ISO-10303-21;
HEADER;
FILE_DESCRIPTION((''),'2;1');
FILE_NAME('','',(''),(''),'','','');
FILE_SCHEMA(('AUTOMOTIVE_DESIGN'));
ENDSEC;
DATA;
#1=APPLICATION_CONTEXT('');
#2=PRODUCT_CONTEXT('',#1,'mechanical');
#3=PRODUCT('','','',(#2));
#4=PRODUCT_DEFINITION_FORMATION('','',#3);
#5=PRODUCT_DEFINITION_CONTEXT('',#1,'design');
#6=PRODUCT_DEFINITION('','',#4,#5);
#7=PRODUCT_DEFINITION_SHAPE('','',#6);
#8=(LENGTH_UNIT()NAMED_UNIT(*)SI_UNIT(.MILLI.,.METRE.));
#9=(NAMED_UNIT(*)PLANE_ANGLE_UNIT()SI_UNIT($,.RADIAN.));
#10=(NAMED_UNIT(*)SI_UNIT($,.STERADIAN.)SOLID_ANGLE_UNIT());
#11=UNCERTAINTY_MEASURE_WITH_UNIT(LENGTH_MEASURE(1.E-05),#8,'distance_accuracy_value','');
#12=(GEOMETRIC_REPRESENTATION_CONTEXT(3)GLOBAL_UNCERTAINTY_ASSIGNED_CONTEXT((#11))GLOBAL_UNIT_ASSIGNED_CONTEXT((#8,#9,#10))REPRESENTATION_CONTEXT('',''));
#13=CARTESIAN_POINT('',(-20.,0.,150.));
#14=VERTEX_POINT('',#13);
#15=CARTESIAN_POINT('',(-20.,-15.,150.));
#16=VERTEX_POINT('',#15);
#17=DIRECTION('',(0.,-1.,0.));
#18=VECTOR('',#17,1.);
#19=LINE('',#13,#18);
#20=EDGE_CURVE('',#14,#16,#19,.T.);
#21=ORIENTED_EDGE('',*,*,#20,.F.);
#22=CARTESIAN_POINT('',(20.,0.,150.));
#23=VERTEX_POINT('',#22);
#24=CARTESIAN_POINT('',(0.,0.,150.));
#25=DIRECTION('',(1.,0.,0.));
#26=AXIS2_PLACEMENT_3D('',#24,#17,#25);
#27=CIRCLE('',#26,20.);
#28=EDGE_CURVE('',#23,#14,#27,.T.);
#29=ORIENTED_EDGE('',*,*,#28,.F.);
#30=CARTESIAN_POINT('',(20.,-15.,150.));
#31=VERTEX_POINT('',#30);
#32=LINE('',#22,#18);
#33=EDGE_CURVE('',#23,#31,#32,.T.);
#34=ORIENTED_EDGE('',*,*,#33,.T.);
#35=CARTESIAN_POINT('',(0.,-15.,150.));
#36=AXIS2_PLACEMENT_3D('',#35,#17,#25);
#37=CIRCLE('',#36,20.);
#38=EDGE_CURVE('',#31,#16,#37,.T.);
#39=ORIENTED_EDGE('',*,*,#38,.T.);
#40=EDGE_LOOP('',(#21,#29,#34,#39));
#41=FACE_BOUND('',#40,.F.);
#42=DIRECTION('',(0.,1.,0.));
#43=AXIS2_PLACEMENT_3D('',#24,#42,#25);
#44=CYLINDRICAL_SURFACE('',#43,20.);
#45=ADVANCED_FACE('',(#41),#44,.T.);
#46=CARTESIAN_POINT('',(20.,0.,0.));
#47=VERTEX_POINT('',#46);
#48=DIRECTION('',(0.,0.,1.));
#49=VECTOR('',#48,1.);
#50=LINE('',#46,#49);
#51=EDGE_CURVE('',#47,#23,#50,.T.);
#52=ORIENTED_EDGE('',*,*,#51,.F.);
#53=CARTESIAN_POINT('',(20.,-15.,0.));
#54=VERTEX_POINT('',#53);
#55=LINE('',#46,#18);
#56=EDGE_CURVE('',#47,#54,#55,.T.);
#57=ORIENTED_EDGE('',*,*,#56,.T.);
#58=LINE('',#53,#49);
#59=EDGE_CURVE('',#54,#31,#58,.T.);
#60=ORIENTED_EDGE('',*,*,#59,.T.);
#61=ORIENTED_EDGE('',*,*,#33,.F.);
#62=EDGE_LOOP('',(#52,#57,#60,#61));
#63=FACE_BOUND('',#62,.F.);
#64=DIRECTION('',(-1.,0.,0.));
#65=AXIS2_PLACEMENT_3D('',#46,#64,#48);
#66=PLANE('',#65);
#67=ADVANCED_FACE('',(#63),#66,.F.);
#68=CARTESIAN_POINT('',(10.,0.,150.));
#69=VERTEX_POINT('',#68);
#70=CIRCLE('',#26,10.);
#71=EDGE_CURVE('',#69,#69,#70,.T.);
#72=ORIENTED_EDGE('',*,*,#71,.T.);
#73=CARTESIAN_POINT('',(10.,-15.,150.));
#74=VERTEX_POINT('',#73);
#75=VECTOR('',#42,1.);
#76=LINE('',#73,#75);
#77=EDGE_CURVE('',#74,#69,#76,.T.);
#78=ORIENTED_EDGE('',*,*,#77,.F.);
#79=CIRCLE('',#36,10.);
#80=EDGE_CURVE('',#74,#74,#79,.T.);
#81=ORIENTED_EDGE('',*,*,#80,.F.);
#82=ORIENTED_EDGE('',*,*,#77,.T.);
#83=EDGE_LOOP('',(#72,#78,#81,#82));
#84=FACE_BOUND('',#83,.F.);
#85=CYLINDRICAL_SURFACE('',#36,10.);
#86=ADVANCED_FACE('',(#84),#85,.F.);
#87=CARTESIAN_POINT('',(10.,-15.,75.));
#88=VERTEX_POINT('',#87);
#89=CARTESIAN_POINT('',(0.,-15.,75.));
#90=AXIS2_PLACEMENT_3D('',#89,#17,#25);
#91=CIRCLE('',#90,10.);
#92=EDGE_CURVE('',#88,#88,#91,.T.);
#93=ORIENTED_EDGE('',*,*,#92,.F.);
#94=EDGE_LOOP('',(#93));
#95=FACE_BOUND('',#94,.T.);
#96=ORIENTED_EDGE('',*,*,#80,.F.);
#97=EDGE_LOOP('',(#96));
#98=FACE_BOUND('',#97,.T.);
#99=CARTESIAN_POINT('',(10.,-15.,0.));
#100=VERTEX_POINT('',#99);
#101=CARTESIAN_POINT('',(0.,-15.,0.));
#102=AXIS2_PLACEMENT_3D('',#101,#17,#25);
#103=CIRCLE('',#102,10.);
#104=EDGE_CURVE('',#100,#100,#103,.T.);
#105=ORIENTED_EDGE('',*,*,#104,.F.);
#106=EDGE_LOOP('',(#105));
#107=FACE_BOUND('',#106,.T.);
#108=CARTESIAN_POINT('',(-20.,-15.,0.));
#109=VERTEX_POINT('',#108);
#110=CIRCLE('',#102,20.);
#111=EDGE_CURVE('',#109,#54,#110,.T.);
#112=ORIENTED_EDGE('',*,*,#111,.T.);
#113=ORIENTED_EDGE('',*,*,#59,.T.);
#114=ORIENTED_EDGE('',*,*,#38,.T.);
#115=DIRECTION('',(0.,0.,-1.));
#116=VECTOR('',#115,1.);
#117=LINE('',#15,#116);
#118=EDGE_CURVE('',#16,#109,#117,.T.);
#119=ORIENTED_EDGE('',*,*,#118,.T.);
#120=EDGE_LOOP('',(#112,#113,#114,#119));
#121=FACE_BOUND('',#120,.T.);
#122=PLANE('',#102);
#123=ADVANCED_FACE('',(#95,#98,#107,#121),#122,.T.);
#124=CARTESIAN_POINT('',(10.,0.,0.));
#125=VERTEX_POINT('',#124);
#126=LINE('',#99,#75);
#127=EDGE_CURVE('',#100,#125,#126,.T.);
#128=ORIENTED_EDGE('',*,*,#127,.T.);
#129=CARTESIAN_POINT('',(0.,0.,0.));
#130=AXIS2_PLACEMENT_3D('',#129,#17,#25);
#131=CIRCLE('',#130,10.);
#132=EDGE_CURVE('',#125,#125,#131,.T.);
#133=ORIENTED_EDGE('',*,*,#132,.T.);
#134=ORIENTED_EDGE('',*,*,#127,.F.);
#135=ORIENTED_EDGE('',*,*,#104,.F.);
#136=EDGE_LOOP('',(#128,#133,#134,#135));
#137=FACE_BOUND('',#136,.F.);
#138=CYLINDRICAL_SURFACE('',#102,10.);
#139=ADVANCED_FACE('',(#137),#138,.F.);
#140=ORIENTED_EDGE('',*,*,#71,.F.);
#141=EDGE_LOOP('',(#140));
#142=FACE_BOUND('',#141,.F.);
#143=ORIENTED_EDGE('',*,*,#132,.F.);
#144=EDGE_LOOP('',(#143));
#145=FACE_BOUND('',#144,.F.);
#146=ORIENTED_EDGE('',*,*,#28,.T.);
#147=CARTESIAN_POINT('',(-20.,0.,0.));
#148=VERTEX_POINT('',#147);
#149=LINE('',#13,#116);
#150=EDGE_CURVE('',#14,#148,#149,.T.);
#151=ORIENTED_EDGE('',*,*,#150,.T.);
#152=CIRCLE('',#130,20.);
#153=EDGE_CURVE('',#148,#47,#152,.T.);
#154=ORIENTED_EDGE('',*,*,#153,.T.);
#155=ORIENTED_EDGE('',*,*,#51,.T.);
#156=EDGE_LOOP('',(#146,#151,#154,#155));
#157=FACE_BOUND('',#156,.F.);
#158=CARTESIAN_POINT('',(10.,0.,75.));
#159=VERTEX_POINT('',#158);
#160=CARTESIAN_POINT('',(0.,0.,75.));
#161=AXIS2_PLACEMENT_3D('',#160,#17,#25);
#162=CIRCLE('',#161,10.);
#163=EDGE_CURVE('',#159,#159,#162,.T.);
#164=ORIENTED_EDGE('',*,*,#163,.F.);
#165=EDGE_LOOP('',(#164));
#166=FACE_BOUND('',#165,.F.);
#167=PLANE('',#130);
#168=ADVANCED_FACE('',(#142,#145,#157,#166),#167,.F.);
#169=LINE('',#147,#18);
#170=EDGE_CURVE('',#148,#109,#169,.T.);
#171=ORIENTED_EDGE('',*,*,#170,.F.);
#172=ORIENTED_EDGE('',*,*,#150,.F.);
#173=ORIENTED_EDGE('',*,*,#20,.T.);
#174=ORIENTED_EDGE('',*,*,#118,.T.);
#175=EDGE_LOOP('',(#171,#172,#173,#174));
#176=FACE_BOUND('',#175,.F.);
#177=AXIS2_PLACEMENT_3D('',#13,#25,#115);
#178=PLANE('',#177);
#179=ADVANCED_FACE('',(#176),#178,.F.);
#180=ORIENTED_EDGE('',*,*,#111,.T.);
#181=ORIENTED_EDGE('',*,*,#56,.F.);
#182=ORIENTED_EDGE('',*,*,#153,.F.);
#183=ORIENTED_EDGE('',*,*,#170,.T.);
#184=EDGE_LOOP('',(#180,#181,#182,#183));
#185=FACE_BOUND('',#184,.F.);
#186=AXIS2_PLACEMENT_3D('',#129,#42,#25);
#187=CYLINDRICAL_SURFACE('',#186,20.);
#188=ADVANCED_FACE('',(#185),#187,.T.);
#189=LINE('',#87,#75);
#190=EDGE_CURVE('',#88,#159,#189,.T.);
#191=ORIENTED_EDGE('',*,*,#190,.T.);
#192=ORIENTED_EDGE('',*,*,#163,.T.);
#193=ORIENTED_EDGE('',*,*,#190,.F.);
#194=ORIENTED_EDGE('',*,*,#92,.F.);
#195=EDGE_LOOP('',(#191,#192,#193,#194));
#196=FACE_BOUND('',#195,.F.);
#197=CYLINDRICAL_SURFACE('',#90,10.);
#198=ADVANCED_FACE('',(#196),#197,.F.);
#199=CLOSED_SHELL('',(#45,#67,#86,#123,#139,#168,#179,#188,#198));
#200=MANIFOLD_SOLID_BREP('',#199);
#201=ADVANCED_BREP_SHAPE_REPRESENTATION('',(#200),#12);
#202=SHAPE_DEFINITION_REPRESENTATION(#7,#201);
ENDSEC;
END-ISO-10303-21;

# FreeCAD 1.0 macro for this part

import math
import FreeCAD as App
import Part
import Sketcher
from FreeCAD import Vector
Q = App.Units.Quantity

doc = App.newDocument("Part")
body = doc.addObject("PartDesign::Body", "Body")

# Sketch on XZ plane
sketch1 = body.newObject("Sketcher::SketchObject", "Sketch")
sketch1.AttachmentSupport = (doc.getObject("XZ_Plane"), [""])
sketch1.MapMode = "FlatFace"
sketch1.addGeometry(Part.ArcOfCircle(Part.Circle(Vector(0, 0, 0), Vector(0, 0, 1), 20), math.radians(180), math.radians(360)), False)
sketch1.addGeometry(Part.LineSegment(Vector(20, 0, 0), Vector(20, 150, 0)), False)
sketch1.addGeometry(Part.ArcOfCircle(Part.Circle(Vector(0, 150, 0), Vector(0, 0, 1), 20), math.radians(0), math.radians(180)), False)
sketch1.addGeometry(Part.LineSegment(Vector(-20, 150, 0), Vector(-20, 0, 0)), False)
sketch1.addConstraint(Sketcher.Constraint("Tangent", 0, 2, 1, 1))
sketch1.addConstraint(Sketcher.Constraint("Tangent", 1, 2, 2, 1))
sketch1.addConstraint(Sketcher.Constraint("Tangent", 2, 2, 3, 1))
sketch1.addConstraint(Sketcher.Constraint("Tangent", 3, 2, 0, 1))
sketch1.addConstraint(Sketcher.Constraint("Vertical", 1))
sketch1.addConstraint(Sketcher.Constraint("Vertical", 3))
sketch1.addConstraint(Sketcher.Constraint("Coincident", 0, 3, -1, 1))
sketch1.addConstraint(Sketcher.Constraint("Radius", 0, Q("20 mm")))
sketch1.addConstraint(Sketcher.Constraint("DistanceY", 1, 1, 1, 2, Q("150 mm")))
pad1 = body.newObject("PartDesign::Pad", "Pad")
pad1.Profile = sketch1
pad1.Length = 15

# Sketch on XZ plane
sketch2 = body.newObject("Sketcher::SketchObject", "Sketch001")
sketch2.AttachmentSupport = (doc.getObject("XZ_Plane"), [""])
sketch2.MapMode = "FlatFace"
sketch2.AttachmentOffset = App.Placement(Vector(0, 0, 15), App.Rotation())
sketch2.addGeometry(Part.Circle(Vector(0, 150, 0), Vector(0, 0, 1), 10), False)
sketch2.addGeometry(Part.Circle(Vector(0, 0, 0), Vector(0, 0, 1), 10), False)
sketch2.addConstraint(Sketcher.Constraint("Coincident", 1, 3, -1, 1))
sketch2.addConstraint(Sketcher.Constraint("Equal", 0, 1))
sketch2.addConstraint(Sketcher.Constraint("PointOnObject", 0, 3, -2))
sketch2.addConstraint(Sketcher.Constraint("Diameter", 0, Q("20 mm")))
sketch2.addConstraint(Sketcher.Constraint("DistanceY", -1, 1, 0, 3, Q("150 mm")))
pocket1 = body.newObject("PartDesign::Pocket", "Pocket")
pocket1.Profile = sketch2
pocket1.Length = 25

# Sketch on XZ plane
sketch3 = body.newObject("Sketcher::SketchObject", "Sketch002")
sketch3.AttachmentSupport = (doc.getObject("XZ_Plane"), [""])
sketch3.MapMode = "FlatFace"
sketch3.AttachmentOffset = App.Placement(Vector(0, 0, 15), App.Rotation())
sketch3.addGeometry(Part.Circle(Vector(0, 75, 0), Vector(0, 0, 1), 10), False)
sketch3.addConstraint(Sketcher.Constraint("PointOnObject", 0, 3, -2))
sketch3.addConstraint(Sketcher.Constraint("Diameter", 0, Q("20 mm")))
sketch3.addConstraint(Sketcher.Constraint("DistanceY", -1, 1, 0, 3, Q("75 mm")))
pocket2 = body.newObject("PartDesign::Pocket", "Pocket001")
pocket2.Profile = sketch3
pocket2.Length = 25

doc.recompute()
